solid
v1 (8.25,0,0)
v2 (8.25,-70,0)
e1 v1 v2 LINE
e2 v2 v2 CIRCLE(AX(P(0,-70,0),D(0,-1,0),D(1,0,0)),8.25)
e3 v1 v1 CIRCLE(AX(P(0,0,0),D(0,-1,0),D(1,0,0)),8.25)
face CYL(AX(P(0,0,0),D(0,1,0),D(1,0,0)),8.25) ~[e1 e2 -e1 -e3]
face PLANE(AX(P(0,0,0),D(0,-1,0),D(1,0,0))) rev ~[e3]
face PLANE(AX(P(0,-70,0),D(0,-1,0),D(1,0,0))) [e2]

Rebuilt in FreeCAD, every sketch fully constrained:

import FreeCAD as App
import Part
import Sketcher

V = App.Vector

doc = App.newDocument("Part")
body = doc.addObject("PartDesign::Body", "Body")

sketch1 = body.newObject("Sketcher::SketchObject", "Sketch")
sketch1.AttachmentSupport = (doc.getObject("XZ_Plane"), [""])
sketch1.MapMode = "FlatFace"
sketch1.addGeometry(Part.Circle(V(0, 0, 0), V(0, 0, 1), 8), False)
sketch1.addConstraint([
    Sketcher.Constraint("Coincident", 0, 3, -1, 1),
    Sketcher.Constraint("Diameter", 0, 16.5),
])
pad1 = body.newObject("PartDesign::Pad", "Pad")
pad1.Profile = sketch1
pad1.Length = 70

doc.recompute()
